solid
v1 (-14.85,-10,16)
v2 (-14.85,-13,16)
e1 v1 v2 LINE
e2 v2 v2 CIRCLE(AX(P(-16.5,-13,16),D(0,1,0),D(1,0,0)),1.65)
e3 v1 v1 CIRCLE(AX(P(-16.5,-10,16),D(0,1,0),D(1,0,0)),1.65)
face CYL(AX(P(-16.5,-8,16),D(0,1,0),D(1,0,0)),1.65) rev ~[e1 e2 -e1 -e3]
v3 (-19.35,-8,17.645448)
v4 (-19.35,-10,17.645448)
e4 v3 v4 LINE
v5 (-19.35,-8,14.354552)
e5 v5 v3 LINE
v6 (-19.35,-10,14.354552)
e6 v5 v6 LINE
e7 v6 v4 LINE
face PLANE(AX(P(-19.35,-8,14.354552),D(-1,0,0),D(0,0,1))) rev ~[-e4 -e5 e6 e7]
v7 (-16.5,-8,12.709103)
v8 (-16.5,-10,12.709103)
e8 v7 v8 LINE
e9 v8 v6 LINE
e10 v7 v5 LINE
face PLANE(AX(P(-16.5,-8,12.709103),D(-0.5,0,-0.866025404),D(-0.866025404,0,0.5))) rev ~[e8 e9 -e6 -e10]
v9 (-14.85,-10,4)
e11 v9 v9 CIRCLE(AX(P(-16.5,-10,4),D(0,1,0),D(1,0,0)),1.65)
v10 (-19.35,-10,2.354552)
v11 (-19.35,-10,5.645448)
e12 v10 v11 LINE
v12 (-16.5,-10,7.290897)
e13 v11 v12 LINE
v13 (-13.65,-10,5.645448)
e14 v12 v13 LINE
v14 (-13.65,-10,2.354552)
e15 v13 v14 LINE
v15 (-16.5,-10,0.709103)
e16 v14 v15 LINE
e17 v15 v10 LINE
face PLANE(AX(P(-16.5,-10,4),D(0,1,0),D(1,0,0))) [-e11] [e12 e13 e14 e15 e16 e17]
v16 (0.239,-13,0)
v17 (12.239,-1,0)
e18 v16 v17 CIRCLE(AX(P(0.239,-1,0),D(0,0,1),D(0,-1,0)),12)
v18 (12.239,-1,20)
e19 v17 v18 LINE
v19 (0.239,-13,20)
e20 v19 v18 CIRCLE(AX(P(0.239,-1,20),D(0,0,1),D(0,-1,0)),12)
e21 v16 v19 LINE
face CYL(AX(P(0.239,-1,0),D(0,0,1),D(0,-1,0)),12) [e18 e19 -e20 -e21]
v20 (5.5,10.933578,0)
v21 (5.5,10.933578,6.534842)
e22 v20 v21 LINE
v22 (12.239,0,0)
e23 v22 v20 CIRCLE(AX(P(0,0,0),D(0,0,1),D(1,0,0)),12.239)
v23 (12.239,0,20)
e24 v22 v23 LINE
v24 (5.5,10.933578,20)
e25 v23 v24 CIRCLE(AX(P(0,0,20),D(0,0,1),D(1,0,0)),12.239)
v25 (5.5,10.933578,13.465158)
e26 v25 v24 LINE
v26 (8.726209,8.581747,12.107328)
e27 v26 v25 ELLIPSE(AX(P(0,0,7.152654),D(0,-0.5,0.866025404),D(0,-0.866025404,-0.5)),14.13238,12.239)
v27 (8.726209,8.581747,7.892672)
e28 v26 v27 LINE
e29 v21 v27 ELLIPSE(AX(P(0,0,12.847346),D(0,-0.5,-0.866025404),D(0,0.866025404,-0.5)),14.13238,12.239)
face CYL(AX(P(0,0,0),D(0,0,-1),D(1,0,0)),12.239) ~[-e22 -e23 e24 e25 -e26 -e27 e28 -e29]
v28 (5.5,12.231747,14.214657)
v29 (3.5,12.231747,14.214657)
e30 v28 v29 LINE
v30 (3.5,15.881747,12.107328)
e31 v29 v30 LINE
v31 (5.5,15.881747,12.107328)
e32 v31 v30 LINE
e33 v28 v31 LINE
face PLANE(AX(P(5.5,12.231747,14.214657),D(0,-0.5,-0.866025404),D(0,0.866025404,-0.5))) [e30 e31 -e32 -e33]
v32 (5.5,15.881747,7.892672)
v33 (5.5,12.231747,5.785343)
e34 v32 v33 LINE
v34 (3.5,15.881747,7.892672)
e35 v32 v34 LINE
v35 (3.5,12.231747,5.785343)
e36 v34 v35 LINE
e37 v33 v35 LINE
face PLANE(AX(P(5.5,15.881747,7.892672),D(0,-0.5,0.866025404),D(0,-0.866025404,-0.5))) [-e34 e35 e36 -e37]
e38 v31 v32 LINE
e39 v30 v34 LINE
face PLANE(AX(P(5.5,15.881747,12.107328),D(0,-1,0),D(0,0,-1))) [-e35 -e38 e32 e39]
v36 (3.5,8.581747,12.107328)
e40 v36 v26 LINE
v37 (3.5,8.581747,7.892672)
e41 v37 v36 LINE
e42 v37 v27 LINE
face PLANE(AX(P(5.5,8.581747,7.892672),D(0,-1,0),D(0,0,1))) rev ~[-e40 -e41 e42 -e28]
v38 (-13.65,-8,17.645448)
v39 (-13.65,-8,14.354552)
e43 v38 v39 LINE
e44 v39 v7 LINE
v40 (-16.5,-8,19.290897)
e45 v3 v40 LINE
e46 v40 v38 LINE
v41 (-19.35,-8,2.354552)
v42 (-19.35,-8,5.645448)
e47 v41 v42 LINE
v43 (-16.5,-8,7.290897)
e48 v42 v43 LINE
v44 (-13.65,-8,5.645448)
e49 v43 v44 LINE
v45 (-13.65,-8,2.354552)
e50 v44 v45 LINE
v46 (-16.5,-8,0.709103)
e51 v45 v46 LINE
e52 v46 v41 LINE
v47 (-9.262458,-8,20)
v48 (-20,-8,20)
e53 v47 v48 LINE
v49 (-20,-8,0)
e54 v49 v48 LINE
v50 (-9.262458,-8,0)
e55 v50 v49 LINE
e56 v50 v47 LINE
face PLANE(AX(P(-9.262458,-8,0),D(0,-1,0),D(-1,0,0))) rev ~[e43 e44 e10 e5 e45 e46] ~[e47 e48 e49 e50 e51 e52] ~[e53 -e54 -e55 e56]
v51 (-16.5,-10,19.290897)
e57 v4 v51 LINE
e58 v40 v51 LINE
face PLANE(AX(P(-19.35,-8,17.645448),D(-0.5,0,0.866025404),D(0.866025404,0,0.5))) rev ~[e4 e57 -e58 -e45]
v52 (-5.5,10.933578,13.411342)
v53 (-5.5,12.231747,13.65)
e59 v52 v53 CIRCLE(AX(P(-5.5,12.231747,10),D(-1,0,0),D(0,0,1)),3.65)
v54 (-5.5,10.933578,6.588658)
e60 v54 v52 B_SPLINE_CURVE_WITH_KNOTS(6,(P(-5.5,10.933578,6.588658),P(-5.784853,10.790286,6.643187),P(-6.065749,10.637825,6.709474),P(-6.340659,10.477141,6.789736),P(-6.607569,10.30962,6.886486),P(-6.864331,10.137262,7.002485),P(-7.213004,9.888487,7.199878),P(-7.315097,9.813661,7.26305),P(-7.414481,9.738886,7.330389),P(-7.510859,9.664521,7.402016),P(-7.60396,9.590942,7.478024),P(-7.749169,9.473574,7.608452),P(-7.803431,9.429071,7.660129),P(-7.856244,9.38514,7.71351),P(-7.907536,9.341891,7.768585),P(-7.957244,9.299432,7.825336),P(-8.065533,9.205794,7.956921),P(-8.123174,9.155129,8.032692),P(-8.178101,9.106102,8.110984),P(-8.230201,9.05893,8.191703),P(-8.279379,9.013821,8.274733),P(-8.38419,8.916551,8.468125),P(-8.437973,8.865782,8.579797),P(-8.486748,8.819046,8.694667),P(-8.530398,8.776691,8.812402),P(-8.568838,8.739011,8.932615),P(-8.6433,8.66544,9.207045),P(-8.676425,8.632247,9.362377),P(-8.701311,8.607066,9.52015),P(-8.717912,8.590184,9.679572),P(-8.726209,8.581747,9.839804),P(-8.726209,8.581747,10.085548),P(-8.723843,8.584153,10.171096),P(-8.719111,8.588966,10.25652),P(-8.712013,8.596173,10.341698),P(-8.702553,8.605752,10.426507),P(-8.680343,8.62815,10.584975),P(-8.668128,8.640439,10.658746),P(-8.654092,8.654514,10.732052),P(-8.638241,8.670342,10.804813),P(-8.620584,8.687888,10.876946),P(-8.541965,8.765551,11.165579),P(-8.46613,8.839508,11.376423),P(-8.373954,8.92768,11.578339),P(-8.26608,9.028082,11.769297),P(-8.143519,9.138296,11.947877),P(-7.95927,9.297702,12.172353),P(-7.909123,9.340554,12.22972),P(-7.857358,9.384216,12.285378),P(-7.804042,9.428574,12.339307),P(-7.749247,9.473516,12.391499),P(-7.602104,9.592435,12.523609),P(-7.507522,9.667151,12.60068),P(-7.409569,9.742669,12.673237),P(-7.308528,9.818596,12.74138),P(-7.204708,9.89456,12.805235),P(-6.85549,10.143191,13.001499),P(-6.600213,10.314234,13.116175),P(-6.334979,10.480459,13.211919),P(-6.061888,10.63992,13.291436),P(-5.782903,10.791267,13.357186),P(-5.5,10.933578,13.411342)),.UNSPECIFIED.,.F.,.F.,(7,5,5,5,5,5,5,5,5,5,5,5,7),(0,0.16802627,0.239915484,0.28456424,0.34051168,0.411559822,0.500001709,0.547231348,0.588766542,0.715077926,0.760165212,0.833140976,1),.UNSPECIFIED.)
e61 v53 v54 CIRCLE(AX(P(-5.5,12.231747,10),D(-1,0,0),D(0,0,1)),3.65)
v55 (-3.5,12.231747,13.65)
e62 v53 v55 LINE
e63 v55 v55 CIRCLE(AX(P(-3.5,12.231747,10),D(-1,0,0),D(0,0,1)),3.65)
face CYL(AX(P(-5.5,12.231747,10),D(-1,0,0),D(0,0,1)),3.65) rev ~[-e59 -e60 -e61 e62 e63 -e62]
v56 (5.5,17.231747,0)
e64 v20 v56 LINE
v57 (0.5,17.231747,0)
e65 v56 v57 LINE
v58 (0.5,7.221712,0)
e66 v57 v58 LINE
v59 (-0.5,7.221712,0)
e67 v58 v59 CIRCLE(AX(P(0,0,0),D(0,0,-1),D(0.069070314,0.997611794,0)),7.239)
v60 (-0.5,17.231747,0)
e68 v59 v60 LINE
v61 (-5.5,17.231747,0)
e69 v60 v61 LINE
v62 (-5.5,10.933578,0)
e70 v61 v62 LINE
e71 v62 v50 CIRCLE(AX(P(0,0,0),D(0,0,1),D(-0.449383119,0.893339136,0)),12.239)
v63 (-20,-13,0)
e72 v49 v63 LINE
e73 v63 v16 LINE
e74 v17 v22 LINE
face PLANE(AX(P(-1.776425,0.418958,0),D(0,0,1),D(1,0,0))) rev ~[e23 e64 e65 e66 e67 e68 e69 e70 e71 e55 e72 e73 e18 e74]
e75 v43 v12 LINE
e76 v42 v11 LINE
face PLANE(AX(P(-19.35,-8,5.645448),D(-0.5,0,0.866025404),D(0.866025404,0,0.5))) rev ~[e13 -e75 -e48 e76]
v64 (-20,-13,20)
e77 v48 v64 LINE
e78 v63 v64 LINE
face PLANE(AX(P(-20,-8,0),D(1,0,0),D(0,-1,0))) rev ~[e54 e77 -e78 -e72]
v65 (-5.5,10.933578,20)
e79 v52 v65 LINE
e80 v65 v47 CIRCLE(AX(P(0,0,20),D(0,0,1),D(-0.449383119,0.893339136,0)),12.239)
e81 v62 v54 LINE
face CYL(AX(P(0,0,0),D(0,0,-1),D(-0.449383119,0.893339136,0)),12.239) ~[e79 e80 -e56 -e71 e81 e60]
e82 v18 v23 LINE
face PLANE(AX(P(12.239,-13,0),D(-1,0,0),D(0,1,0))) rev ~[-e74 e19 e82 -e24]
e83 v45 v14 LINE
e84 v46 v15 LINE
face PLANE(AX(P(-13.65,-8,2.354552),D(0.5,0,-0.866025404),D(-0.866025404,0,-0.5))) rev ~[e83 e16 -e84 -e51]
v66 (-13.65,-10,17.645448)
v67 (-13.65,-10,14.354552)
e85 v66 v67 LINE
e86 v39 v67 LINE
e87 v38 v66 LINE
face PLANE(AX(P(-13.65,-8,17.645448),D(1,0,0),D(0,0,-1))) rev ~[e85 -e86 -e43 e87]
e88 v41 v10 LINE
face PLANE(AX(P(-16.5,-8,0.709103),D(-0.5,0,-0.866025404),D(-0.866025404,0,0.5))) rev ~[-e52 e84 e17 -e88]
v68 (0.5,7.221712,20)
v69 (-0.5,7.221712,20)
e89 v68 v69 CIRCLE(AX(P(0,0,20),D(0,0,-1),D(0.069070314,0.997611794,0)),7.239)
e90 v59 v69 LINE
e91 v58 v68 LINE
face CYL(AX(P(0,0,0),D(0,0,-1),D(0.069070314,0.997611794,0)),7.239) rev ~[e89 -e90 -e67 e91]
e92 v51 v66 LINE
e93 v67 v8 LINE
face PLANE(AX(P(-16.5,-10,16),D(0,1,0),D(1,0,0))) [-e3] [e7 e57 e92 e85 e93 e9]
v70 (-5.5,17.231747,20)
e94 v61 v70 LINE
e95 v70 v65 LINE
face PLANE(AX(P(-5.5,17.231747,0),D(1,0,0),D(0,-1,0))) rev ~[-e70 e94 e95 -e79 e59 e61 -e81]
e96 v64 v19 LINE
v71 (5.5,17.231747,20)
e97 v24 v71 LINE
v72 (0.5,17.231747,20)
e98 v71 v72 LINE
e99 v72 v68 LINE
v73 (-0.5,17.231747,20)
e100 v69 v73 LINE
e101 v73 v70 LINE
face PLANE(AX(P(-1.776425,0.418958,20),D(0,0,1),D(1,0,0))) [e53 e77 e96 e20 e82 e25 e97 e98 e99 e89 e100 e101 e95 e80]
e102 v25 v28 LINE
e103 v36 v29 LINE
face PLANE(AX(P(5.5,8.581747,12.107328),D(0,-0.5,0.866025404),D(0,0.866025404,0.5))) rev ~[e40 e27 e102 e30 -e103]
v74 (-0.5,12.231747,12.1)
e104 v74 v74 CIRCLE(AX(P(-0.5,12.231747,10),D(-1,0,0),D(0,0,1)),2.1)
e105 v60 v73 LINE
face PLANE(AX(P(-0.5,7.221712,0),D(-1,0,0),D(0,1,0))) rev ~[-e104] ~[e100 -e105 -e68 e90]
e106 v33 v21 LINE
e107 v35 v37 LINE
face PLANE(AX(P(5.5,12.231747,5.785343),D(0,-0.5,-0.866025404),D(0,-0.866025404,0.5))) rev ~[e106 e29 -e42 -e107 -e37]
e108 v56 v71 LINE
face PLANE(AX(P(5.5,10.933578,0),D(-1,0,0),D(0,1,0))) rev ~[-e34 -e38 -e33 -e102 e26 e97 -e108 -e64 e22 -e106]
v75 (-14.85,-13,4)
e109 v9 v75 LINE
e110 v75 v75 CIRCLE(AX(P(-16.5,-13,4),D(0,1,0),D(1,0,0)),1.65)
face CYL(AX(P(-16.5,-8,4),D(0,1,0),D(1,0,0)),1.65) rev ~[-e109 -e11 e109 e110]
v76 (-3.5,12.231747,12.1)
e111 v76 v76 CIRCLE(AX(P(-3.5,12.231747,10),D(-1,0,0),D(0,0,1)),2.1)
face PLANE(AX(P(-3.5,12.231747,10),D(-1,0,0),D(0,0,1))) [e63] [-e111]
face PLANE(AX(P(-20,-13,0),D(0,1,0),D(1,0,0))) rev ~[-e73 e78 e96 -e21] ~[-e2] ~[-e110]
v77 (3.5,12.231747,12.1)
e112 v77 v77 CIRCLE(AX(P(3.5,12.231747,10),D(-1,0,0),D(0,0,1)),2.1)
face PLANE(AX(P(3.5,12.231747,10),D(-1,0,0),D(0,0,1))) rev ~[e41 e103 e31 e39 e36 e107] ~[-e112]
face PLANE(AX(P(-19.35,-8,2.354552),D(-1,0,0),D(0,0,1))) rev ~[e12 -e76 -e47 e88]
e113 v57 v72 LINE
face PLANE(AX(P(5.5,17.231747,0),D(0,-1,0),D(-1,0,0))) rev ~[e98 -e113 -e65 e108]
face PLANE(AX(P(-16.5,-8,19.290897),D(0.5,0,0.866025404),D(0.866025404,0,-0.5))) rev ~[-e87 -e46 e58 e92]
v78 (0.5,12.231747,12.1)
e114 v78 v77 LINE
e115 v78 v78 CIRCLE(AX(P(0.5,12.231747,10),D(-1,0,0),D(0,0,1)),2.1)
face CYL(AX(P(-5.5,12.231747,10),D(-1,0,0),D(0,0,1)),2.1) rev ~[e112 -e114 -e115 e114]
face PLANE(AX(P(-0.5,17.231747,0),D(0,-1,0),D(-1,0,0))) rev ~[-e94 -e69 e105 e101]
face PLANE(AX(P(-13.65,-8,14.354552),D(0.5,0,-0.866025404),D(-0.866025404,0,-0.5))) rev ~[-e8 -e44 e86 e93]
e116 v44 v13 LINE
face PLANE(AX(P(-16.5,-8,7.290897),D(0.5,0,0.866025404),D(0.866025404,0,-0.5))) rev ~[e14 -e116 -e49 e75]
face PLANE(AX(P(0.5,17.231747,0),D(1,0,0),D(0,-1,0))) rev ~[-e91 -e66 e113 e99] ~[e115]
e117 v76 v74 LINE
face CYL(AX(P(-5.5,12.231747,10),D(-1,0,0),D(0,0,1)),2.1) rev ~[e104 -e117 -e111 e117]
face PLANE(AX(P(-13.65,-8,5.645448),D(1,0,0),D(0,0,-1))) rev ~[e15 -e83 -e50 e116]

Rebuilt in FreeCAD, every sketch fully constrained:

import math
import FreeCAD as App
import Part
import Sketcher
from FreeCAD import Vector
Q = App.Units.Quantity


def edges_at(feature, points):
    """Names of the edges that pass closest to the given points."""
    edges = feature.Shape.Edges
    near = lambda p: min(range(len(edges)), key=lambda i: edges[i].distToShape(Part.Vertex(*p))[0])
    return sorted({f"Edge{near(p) + 1}" for p in points})


def add_polygon(sketch, points):
    """Adds a closed chain of lines whose ends are joined by coincident constraints."""
    first, n = sketch.GeometryCount, len(points)
    for a, b in zip(points, points[1:] + points[:1]):
        sketch.addGeometry(Part.LineSegment(App.Vector(*a, 0), App.Vector(*b, 0)), False)
    for i in range(n):
        sketch.addConstraint(Sketcher.Constraint("Coincident", first + i, 2, first + (i + 1) % n, 1))

doc = App.newDocument("Part")
body = doc.addObject("PartDesign::Body", "Body")

# Sketch on XY plane
sketch1 = body.newObject("Sketcher::SketchObject", "Sketch")
sketch1.AttachmentSupport = (doc.getObject("XY_Plane"), [""])
sketch1.MapMode = "FlatFace"
sketch1.addGeometry([
    Part.LineSegment(Vector(-0.5, 7.2, 0), Vector(-0.5, 17.2, 0)),  # 0
    Part.LineSegment(Vector(-0.5, 17.2, 0), Vector(-5.5, 17.2, 0)),  # 1
    Part.LineSegment(Vector(-5.5, 17.2, 0), Vector(-5.5, 10.9, 0)),  # 2
    Part.ArcOfCircle(Part.Circle(Vector(0, 0, 0), Vector(0, 0, 1), 12.2), math.radians(117), math.radians(221)),  # 3
    Part.LineSegment(Vector(-9.3, -8, 0), Vector(-20, -8, 0)),  # 4
    Part.LineSegment(Vector(-20, -8, 0), Vector(-20, -13, 0)),  # 5
    Part.LineSegment(Vector(-20, -13, 0), Vector(12.2, -13, 0)),  # 6
    Part.LineSegment(Vector(12.2, -13, 0), Vector(12.2, 0, 0)),  # 7
    Part.ArcOfCircle(Part.Circle(Vector(0, 0, 0), Vector(0, 0, 1), 12.2), math.radians(0), math.radians(63)),  # 8
    Part.LineSegment(Vector(5.5, 10.9, 0), Vector(5.5, 17.2, 0)),  # 9
    Part.LineSegment(Vector(5.5, 17.2, 0), Vector(0.5, 17.2, 0)),  # 10
    Part.LineSegment(Vector(0.5, 17.2, 0), Vector(0.5, 7.2, 0)),  # 11
    Part.ArcOfCircle(Part.Circle(Vector(0, 0, 0), Vector(0, 0, 1), 7.2), math.radians(94), math.radians(446)),  # 12
], False)
sketch1.addConstraint([
    Sketcher.Constraint("Coincident", 0, 2, 1, 1),
    Sketcher.Constraint("Coincident", 1, 2, 2, 1),
    Sketcher.Constraint("Coincident", 2, 2, 3, 1),
    Sketcher.Constraint("Coincident", 3, 2, 4, 1),
    Sketcher.Constraint("Coincident", 4, 2, 5, 1),
    Sketcher.Constraint("Coincident", 5, 2, 6, 1),
    Sketcher.Constraint("Coincident", 6, 2, 7, 1),
    Sketcher.Constraint("Tangent", 7, 2, 8, 1),
    Sketcher.Constraint("Coincident", 8, 2, 9, 1),
    Sketcher.Constraint("Coincident", 9, 2, 10, 1),
    Sketcher.Constraint("Coincident", 10, 2, 11, 1),
    Sketcher.Constraint("Coincident", 11, 2, 12, 2),
    Sketcher.Constraint("Coincident", 12, 1, 0, 1),
    Sketcher.Constraint("Vertical", 0),
    Sketcher.Constraint("Horizontal", 1),
    Sketcher.Constraint("Vertical", 2),
    Sketcher.Constraint("Horizontal", 4),
    Sketcher.Constraint("Vertical", 5),
    Sketcher.Constraint("Horizontal", 6),
    Sketcher.Constraint("Vertical", 7),
    Sketcher.Constraint("Vertical", 9),
    Sketcher.Constraint("Horizontal", 10),
    Sketcher.Constraint("Vertical", 11),
    Sketcher.Constraint("Coincident", 3, 3, -1, 1),
    Sketcher.Constraint("Coincident", 8, 3, -1, 1),
    Sketcher.Constraint("Coincident", 12, 3, -1, 1),
    Sketcher.Constraint("Equal", 3, 8),
    Sketcher.Constraint("Symmetric", 1, 2, 9, 2, -2),
    Sketcher.Constraint("Horizontal", 11, 2, 12, 1),
    Sketcher.Constraint("Equal", 10, 5),
    Sketcher.Constraint("DistanceX", 1, 2, 1, 1, 5.0),
    Sketcher.Constraint("DistanceY", 7, 1, 7, 2, 13.0),
    Sketcher.Constraint("DistanceX", 4, 2, -1, 1, 20.0),
    Sketcher.Constraint("Radius", 3, 12.239),
    Sketcher.Constraint("Radius", 12, 7.239),
    Sketcher.Constraint("DistanceX", 0, 2, 8, 2, 6.0),
    Sketcher.Constraint("DistanceY", 2, 2, 2, 1, 6.29817),
])
pad1 = body.newObject("PartDesign::Pad", "Pad")
pad1.Profile = sketch1
pad1.Length = 20

# Sketch on YZ plane
sketch2 = body.newObject("Sketcher::SketchObject", "Sketch001")
sketch2.AttachmentSupport = (doc.getObject("YZ_Plane"), [""])
sketch2.MapMode = "FlatFace"
sketch2.AttachmentOffset = App.Placement(Vector(0, 0, -5.5), App.Rotation())
sketch2.addGeometry(Part.Circle(Vector(12.2, 10, 0), Vector(0, 0, 1), 2.1), False)
sketch2.addConstraint([
    Sketcher.Constraint("Diameter", 0, 4.2),
    Sketcher.Constraint("DistanceY", -1, 1, 0, 3, 10.0),
    Sketcher.Constraint("DistanceX", -1, 1, 0, 3, 12.231747),
])
pocket1 = body.newObject("PartDesign::Pocket", "Pocket")
pocket1.Profile = sketch2
pocket1.Type = "ThroughAll"
pocket1.Midplane = True

# Sketch on YZ plane
sketch3 = body.newObject("Sketcher::SketchObject", "Sketch002")
sketch3.AttachmentSupport = (doc.getObject("YZ_Plane"), [""])
sketch3.MapMode = "FlatFace"
sketch3.AttachmentOffset = App.Placement(Vector(0, 0, -5.5), App.Rotation())
sketch3.addGeometry(Part.Circle(Vector(12.2, 10, 0), Vector(0, 0, 1), 3.6), False)
sketch3.addConstraint([
    Sketcher.Constraint("Diameter", 0, 7.3),
    Sketcher.Constraint("DistanceY", -1, 1, 0, 3, 10.0),
    Sketcher.Constraint("DistanceX", -1, 1, 0, 3, 12.231747),
])
pocket2 = body.newObject("PartDesign::Pocket", "Pocket001")
pocket2.Profile = sketch3
pocket2.Type = "TwoLengths"
pocket2.Length = 15.5
pocket2.Length2 = 2

# Sketch on YZ plane
sketch4 = body.newObject("Sketcher::SketchObject", "Sketch003")
sketch4.AttachmentSupport = (doc.getObject("YZ_Plane"), [""])
sketch4.MapMode = "FlatFace"
sketch4.AttachmentOffset = App.Placement(Vector(0, 0, 5.5), App.Rotation())
add_polygon(sketch4, [(12.2, 14.2), (8.6, 12.1), (8.6, 7.9), (12.2, 5.8), (15.9, 7.9), (15.9, 12.1)])  # lines 0-5
sketch4.addConstraint([
    Sketcher.Constraint("Vertical", 1),
    Sketcher.Constraint("Vertical", 4),
    Sketcher.Constraint("Parallel", 0, 3),
    Sketcher.Constraint("Parallel", 2, 5),
    Sketcher.Constraint("Horizontal", 1, 2, 3, 2),
    Sketcher.Constraint("Horizontal", 0, 2, 4, 2),
    Sketcher.Constraint("Vertical", 2, 2, 5, 2),
    Sketcher.Constraint("Angle", 0, Q("-150 deg")),
    Sketcher.Constraint("DistanceX", 1, 2, 3, 2, 7.3),
    Sketcher.Constraint("DistanceY", 1, 2, 1, 1, 4.214657),
    Sketcher.Constraint("DistanceY", -1, 1, 0, 2, 12.107328),
    Sketcher.Constraint("DistanceX", -1, 1, 0, 2, 8.581747),
])
pocket3 = body.newObject("PartDesign::Pocket", "Pocket002")
pocket3.Profile = sketch4
pocket3.Type = "TwoLengths"
pocket3.Length = 7.739
pocket3.Length2 = 2
pocket3.Reversed = True

# Sketch on XZ plane
sketch5 = body.newObject("Sketcher::SketchObject", "Sketch004")
sketch5.AttachmentSupport = (doc.getObject("XZ_Plane"), [""])
sketch5.MapMode = "FlatFace"
sketch5.AttachmentOffset = App.Placement(Vector(0, 0, 8), App.Rotation())
sketch5.addGeometry([
    Part.Circle(Vector(-16.5, 4, 0), Vector(0, 0, 1), 1.6),
    Part.Circle(Vector(-16.5, 16, 0), Vector(0, 0, 1), 1.6),
], False)
sketch5.addConstraint([
    Sketcher.Constraint("Equal", 0, 1),
    Sketcher.Constraint("Vertical", 0, 3, 1, 3),
    Sketcher.Constraint("Diameter", 0, 3.3),
    Sketcher.Constraint("DistanceY", -1, 1, 0, 3, 4.0),
    Sketcher.Constraint("DistanceY", -1, 1, 1, 3, 16.0),
    Sketcher.Constraint("DistanceX", 0, 3, -1, 1, 16.5),
])
pocket4 = body.newObject("PartDesign::Pocket", "Pocket003")
pocket4.Profile = sketch5
pocket4.Type = "ThroughAll"
pocket4.Reversed = True

# Sketch on XZ plane
sketch6 = body.newObject("Sketcher::SketchObject", "Sketch005")
sketch6.AttachmentSupport = (doc.getObject("XZ_Plane"), [""])
sketch6.MapMode = "FlatFace"
sketch6.AttachmentOffset = App.Placement(Vector(0, 0, 8), App.Rotation())
add_polygon(sketch6, [(-16.5, 7.3), (-13.7, 5.6), (-13.7, 2.4), (-16.5, 0.7), (-19.4, 2.4), (-19.4, 5.6)])  # lines 0-5
add_polygon(sketch6, [(-16.5, 12.7), (-19.4, 14.4), (-19.4, 17.6), (-16.5, 19.3), (-13.7, 17.6), (-13.7, 14.4)])  # lines 6-11
sketch6.addConstraint([
    Sketcher.Constraint("Vertical", 1),
    Sketcher.Constraint("Vertical", 4),
    Sketcher.Constraint("Vertical", 7),
    Sketcher.Constraint("Vertical", 10),
    Sketcher.Constraint("Parallel", 0, 3),
    Sketcher.Constraint("Parallel", 2, 5),
    Sketcher.Constraint("Parallel", 3, 6),
    Sketcher.Constraint("Parallel", 5, 8),
    Sketcher.Constraint("Parallel", 6, 9),
    Sketcher.Constraint("Parallel", 8, 11),
    Sketcher.Constraint("Horizontal", 1, 2, 3, 2),
    Sketcher.Constraint("Horizontal", 0, 2, 4, 2),
    Sketcher.Constraint("Horizontal", 7, 2, 9, 2),
    Sketcher.Constraint("Horizontal", 6, 2, 10, 2),
    Sketcher.Constraint("Vertical", 2, 2, 5, 2),
    Sketcher.Constraint("Vertical", 4, 2, 6, 2),
    Sketcher.Constraint("Vertical", 5, 2, 8, 2),
    Sketcher.Constraint("Equal", 4, 7),
    Sketcher.Constraint("Angle", 0, Q("-30 deg")),
    Sketcher.Constraint("DistanceY", 3, 2, 6, 2, 12.0),
    Sketcher.Constraint("DistanceX", 2, 2, -1, 1, 16.5),
    Sketcher.Constraint("DistanceX", 3, 2, 1, 2, 5.7),
    Sketcher.Constraint("DistanceY", 1, 2, 1, 1, 3.290897),
    Sketcher.Constraint("DistanceY", -1, 1, 0, 2, 5.645448),
])
pocket5 = body.newObject("PartDesign::Pocket", "Pocket004")
pocket5.Profile = sketch6
pocket5.Length = 2
pocket5.Reversed = True
doc.recompute()

fillet = body.newObject("PartDesign::Fillet", "Fillet")
fillet.Base = (pocket5, edges_at(pocket5, [(12.239, -13, 10)]))
fillet.Radius = 12

doc.recompute()
